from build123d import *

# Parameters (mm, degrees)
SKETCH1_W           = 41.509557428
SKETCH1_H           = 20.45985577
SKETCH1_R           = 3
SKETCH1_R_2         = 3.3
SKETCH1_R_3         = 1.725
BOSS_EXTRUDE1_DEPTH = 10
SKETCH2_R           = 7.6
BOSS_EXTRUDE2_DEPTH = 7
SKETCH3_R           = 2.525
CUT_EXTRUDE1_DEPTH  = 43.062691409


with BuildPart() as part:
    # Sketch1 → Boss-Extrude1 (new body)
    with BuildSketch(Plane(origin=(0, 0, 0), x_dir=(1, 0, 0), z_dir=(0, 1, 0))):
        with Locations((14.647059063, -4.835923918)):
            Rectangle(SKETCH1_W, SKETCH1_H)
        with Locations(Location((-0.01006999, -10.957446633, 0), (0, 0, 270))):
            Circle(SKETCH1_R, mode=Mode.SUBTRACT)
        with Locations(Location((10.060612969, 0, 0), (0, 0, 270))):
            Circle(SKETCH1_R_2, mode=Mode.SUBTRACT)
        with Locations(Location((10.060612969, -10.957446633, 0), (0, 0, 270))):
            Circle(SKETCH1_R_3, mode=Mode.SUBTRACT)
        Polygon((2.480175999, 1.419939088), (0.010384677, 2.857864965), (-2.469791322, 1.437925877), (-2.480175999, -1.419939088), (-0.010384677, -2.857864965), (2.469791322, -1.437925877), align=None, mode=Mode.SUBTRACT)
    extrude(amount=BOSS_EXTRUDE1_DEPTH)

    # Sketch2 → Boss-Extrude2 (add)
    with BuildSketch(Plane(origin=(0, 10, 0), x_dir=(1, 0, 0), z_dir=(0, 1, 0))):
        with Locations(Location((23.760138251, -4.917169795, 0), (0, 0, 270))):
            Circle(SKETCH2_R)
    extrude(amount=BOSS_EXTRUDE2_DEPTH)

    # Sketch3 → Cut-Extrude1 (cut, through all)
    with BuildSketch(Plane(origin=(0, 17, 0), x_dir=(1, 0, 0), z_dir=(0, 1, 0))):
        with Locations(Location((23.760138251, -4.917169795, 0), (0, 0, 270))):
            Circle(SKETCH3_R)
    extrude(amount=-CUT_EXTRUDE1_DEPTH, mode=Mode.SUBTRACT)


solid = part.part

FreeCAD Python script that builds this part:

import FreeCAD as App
import Part
import Sketcher

V = App.Vector
Q = App.Units.Quantity

doc = App.newDocument("Part")
params = doc.addObject("Spreadsheet::Sheet", "Params")
for row, (alias, value) in enumerate([
    ("sketch1_diameter", "6 mm"),
    ("sketch1_diameter2", "6.6 mm"),
    ("sketch1_diameter3", "3.45 mm"),
    ("pad1_length", "10 mm"),
    ("sketch2_diameter", "15.2 mm"),
    ("pad2_length", "7 mm"),
    ("sketch3_diameter", "5.05 mm"),
], start=1):
    params.set(f"A{row}", alias)
    params.set(f"B{row}", "=" + value)
    params.setAlias(f"B{row}", alias)

body = doc.addObject("PartDesign::Body", "Body")

# Sketch on XZ plane
sketch1 = body.newObject("Sketcher::SketchObject", "Sketch")
sketch1.AttachmentSupport = (doc.getObject("XZ_Plane"), [""])
sketch1.MapMode = "FlatFace"
sketch1.addGeometry(Part.LineSegment(V(-6.10772, -5.394004, 0), V(-6.10772, 15.065852, 0)), False)
sketch1.addGeometry(Part.LineSegment(V(-6.10772, 15.065852, 0), V(35.401838, 15.065852, 0)), False)
sketch1.addGeometry(Part.LineSegment(V(35.401838, 15.065852, 0), V(35.401838, -5.394004, 0)), False)
sketch1.addGeometry(Part.LineSegment(V(35.401838, -5.394004, 0), V(-6.10772, -5.394004, 0)), False)
sketch1.addGeometry(Part.Circle(V(-0.01007, 10.957447, 0), V(0, 0, 1), 3), False)
sketch1.addGeometry(Part.Circle(V(10.060613, 10.957447, 0), V(0, 0, 1), 1.725), False)
sketch1.addGeometry(Part.LineSegment(V(0.010385, -2.857865, 0), V(2.480176, -1.419939, 0)), False)
sketch1.addGeometry(Part.LineSegment(V(2.480176, -1.419939, 0), V(2.469791, 1.437926, 0)), False)
sketch1.addGeometry(Part.LineSegment(V(2.469791, 1.437926, 0), V(-0.010385, 2.857865, 0)), False)
sketch1.addGeometry(Part.LineSegment(V(-0.010385, 2.857865, 0), V(-2.480176, 1.419939, 0)), False)
sketch1.addGeometry(Part.LineSegment(V(-2.480176, 1.419939, 0), V(-2.469791, -1.437926, 0)), False)
sketch1.addGeometry(Part.LineSegment(V(-2.469791, -1.437926, 0), V(0.010385, -2.857865, 0)), False)
sketch1.addGeometry(Part.Circle(V(10.060613, 0, 0), V(0, 0, 1), 3.3), False)
sketch1.addConstraint(Sketcher.Constraint("Coincident", 0, 2, 1, 1))
sketch1.addConstraint(Sketcher.Constraint("Coincident", 1, 2, 2, 1))
sketch1.addConstraint(Sketcher.Constraint("Coincident", 2, 2, 3, 1))
sketch1.addConstraint(Sketcher.Constraint("Coincident", 3, 2, 0, 1))
sketch1.addConstraint(Sketcher.Constraint("Coincident", 6, 2, 7, 1))
sketch1.addConstraint(Sketcher.Constraint("Coincident", 7, 2, 8, 1))
sketch1.addConstraint(Sketcher.Constraint("Coincident", 8, 2, 9, 1))
sketch1.addConstraint(Sketcher.Constraint("Coincident", 9, 2, 10, 1))
sketch1.addConstraint(Sketcher.Constraint("Coincident", 10, 2, 11, 1))
sketch1.addConstraint(Sketcher.Constraint("Coincident", 11, 2, 6, 1))
sketch1.addConstraint(Sketcher.Constraint("Vertical", 0))
sketch1.addConstraint(Sketcher.Constraint("Horizontal", 1))
sketch1.addConstraint(Sketcher.Constraint("Vertical", 2))
sketch1.addConstraint(Sketcher.Constraint("Horizontal", 3))
sketch1.addConstraint(Sketcher.Constraint("Symmetric", 6, 2, 9, 2, -1, 1))
sketch1.addConstraint(Sketcher.Constraint("Symmetric", 7, 2, 10, 2, -1, 1))
sketch1.addConstraint(Sketcher.Constraint("Symmetric", 8, 2, 11, 2, -1, 1))
sketch1.addConstraint(Sketcher.Constraint("PointOnObject", 12, 3, -1))
sketch1.addConstraint(Sketcher.Constraint("Horizontal", 4, 3, 5, 3))
sketch1.addConstraint(Sketcher.Constraint("Vertical", 5, 3, 12, 3))
sketch1.addConstraint(Sketcher.Constraint("Equal", 6, 7))
sketch1.addConstraint(Sketcher.Constraint("Equal", 7, 8))
sketch1.addConstraint(Sketcher.Constraint("Diameter", 4, Q("6 mm")))
sketch1.addConstraint(Sketcher.Constraint("Diameter", 12, Q("6.6 mm")))
sketch1.addConstraint(Sketcher.Constraint("Diameter", 5, Q("3.45 mm")))
sketch1.addConstraint(Sketcher.Constraint("DistanceX", 1, 1, 1, 2, Q("41.509557 mm")))
sketch1.addConstraint(Sketcher.Constraint("DistanceY", 0, 1, 0, 2, Q("20.459856 mm")))
sketch1.addConstraint(Sketcher.Constraint("DistanceX", 4, 3, -1, 1, Q("0.01007 mm")))
sketch1.addConstraint(Sketcher.Constraint("DistanceX", 0, 2, -1, 1, Q("6.10772 mm")))
sketch1.addConstraint(Sketcher.Constraint("DistanceY", -1, 1, 0, 2, Q("15.065852 mm")))
sketch1.addConstraint(Sketcher.Constraint("DistanceY", 6, 2, -1, 1, Q("1.419939 mm")))
sketch1.addConstraint(Sketcher.Constraint("DistanceX", -1, 1, 7, 2, Q("2.469791 mm")))
sketch1.addConstraint(Sketcher.Constraint("DistanceY", 2, 2, 5, 3, Q("16.351451 mm")))
sketch1.addConstraint(Sketcher.Constraint("DistanceX", 7, 2, 12, 3, Q("7.590822 mm")))
sketch1.addConstraint(Sketcher.Constraint("DistanceY", 7, 2, 4, 3, Q("9.519521 mm")))
sketch1.addConstraint(Sketcher.Constraint("DistanceY", 7, 2, 8, 2, Q("1.419939 mm")))
sketch1.setExpression("Constraints[22]", "Params.sketch1_diameter")
sketch1.setExpression("Constraints[23]", "Params.sketch1_diameter2")
sketch1.setExpression("Constraints[24]", "Params.sketch1_diameter3")
pad1 = body.newObject("PartDesign::Pad", "Pad")
pad1.Profile = sketch1
pad1.setExpression("Length", "Params.pad1_length")
pad1.Reversed = True

# Sketch on XZ plane
sketch2 = body.newObject("Sketcher::SketchObject", "Sketch001")
sketch2.AttachmentSupport = (doc.getObject("XZ_Plane"), [""])
sketch2.MapMode = "FlatFace"
sketch2.AttachmentOffset = App.Placement(V(0, 0, -10), App.Rotation())
sketch2.addGeometry(Part.Circle(V(23.760138, 4.91717, 0), V(0, 0, 1), 7.6), False)
sketch2.addConstraint(Sketcher.Constraint("Diameter", 0, Q("15.2 mm")))
sketch2.addConstraint(Sketcher.Constraint("DistanceX", -1, 1, 0, 3, Q("23.760138 mm")))
sketch2.addConstraint(Sketcher.Constraint("DistanceY", -1, 1, 0, 3, Q("4.91717 mm")))
sketch2.setExpression("Constraints[0]", "Params.sketch2_diameter")
pad2 = body.newObject("PartDesign::Pad", "Pad001")
pad2.Profile = sketch2
pad2.setExpression("Length", "Params.pad2_length")
pad2.Reversed = True

# Sketch on XZ plane
sketch3 = body.newObject("Sketcher::SketchObject", "Sketch002")
sketch3.AttachmentSupport = (doc.getObject("XZ_Plane"), [""])
sketch3.MapMode = "FlatFace"
sketch3.AttachmentOffset = App.Placement(V(0, 0, -17), App.Rotation())
sketch3.addGeometry(Part.Circle(V(23.760138, 4.91717, 0), V(0, 0, 1), 2.525), False)
sketch3.addConstraint(Sketcher.Constraint("Diameter", 0, Q("5.05 mm")))
sketch3.addConstraint(Sketcher.Constraint("DistanceX", -1, 1, 0, 3, Q("23.760138 mm")))
sketch3.addConstraint(Sketcher.Constraint("DistanceY", -1, 1, 0, 3, Q("4.91717 mm")))
sketch3.setExpression("Constraints[0]", "Params.sketch3_diameter")
pocket1 = body.newObject("PartDesign::Pocket", "Pocket")
pocket1.Profile = sketch3
pocket1.Type = "ThroughAll"
pocket1.Reversed = True

doc.recompute()
